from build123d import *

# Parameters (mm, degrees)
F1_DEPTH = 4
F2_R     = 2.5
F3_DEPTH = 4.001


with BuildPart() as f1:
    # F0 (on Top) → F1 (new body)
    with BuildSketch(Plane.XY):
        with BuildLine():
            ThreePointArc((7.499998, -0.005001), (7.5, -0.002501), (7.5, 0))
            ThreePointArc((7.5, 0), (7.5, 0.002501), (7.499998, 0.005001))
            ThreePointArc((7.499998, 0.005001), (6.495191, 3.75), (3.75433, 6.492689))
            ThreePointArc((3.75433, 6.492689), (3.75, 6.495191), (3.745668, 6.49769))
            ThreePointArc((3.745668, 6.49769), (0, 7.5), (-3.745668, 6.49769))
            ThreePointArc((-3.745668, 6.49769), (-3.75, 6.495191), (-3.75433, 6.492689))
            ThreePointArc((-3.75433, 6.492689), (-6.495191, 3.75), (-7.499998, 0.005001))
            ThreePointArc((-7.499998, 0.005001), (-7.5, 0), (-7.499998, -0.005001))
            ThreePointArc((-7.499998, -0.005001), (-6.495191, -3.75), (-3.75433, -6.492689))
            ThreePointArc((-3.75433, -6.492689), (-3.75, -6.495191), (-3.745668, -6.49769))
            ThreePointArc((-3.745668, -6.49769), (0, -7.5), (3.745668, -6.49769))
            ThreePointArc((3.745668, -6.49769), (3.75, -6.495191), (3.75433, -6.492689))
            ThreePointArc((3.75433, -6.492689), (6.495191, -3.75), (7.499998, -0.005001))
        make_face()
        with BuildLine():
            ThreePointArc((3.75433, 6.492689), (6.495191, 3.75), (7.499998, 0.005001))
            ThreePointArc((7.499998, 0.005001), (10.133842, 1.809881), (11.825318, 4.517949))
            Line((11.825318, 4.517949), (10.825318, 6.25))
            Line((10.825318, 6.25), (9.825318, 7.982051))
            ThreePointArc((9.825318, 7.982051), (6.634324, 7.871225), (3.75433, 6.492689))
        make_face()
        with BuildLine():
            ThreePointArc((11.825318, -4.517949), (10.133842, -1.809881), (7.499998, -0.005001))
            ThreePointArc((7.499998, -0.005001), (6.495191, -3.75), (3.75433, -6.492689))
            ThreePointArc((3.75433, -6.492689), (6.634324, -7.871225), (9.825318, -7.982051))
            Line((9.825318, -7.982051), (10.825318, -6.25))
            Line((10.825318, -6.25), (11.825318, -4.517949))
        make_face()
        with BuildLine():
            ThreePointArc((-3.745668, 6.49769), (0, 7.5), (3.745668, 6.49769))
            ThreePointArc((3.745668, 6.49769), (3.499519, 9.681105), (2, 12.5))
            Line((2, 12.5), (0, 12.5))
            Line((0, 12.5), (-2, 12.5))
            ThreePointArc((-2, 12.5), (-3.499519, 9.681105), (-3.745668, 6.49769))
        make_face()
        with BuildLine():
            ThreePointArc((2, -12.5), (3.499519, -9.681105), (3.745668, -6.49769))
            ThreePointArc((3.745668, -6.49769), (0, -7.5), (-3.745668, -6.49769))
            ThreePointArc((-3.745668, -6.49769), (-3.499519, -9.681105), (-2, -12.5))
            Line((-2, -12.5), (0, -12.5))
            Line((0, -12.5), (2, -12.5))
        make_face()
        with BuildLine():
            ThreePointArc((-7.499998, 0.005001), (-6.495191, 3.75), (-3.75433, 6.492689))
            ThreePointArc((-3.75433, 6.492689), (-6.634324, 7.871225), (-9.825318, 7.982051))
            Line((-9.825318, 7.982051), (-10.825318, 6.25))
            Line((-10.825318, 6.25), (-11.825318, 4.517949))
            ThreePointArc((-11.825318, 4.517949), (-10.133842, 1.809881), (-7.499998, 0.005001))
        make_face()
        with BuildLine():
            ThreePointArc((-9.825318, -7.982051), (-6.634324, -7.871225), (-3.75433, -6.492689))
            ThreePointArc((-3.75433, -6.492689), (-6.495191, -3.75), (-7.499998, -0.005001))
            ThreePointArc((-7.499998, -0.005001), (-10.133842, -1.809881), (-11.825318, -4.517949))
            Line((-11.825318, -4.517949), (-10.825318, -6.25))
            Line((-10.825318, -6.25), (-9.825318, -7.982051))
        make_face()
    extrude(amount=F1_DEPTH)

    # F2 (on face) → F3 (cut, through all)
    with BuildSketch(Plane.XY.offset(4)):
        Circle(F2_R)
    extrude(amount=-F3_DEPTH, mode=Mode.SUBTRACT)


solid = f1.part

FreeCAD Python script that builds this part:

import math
import FreeCAD as App
import Part
import Sketcher
from FreeCAD import Vector
Q = App.Units.Quantity

doc = App.newDocument("Part")
body = doc.addObject("PartDesign::Body", "Body")

# Sketch on XY plane
sketch1 = body.newObject("Sketcher::SketchObject", "Sketch")
sketch1.AttachmentSupport = (doc.getObject("XY_Plane"), [""])
sketch1.MapMode = "FlatFace"
sketch1.addGeometry([
    Part.ArcOfCircle(Part.Circle(Vector(4.374374, -0.001251, 0), Vector(0, 0, 1), 3.125626), math.radians(-0.06875), math.radians(0.022923)),  # 0
    Part.ArcOfCircle(Part.Circle(Vector(4.374374, 0.001251, 0), Vector(0, 0, 1), 3.125626), math.radians(-0.022923), math.radians(0.06875)),  # 1
    Part.ArcOfCircle(Part.Circle(Vector(4.495184, 7.214109, 0), Vector(0, 0, 1), 7.810259), math.radians(-67.373234), math.radians(-20.194462)),  # 2
    Part.LineSegment(Vector(11.825318, 4.517949, 0), Vector(9.825318, 7.982051, 0)),  # 3
    Part.ArcOfCircle(Part.Circle(Vector(8.495191, 0.285897, 0), Vector(0, 0, 1), 7.810252), math.radians(80.194428), math.radians(127.373248)),  # 4
    Part.ArcOfCircle(Part.Circle(Vector(0.274527, 0.475485, 0), Vector(0, 0, 1), 6.950955), math.radians(59.958817), math.radians(60.041262)),  # 5
    Part.ArcOfCircle(Part.Circle(Vector(-3.999996, 7.500001, 0), Vector(0, 0, 1), 7.810246), math.radians(-7.373266), math.radians(39.805582)),  # 6
    Part.LineSegment(Vector(2, 12.5, 0), Vector(-2, 12.5, 0)),  # 7
    Part.ArcOfCircle(Part.Circle(Vector(3.999996, 7.500001, 0), Vector(0, 0, 1), 7.810246), math.radians(140.194418), math.radians(187.373266)),  # 8
    Part.ArcOfCircle(Part.Circle(Vector(-0.274527, 0.475485, 0), Vector(0, 0, 1), 6.950955), math.radians(119.958738), math.radians(120.041183)),  # 9
    Part.ArcOfCircle(Part.Circle(Vector(-8.495191, 0.285897, 0), Vector(0, 0, 1), 7.810252), math.radians(52.626752), math.radians(99.805572)),  # 10
    Part.LineSegment(Vector(-9.825318, 7.982051, 0), Vector(-11.825318, 4.517949, 0)),  # 11
    Part.ArcOfCircle(Part.Circle(Vector(-4.495184, 7.214109, 0), Vector(0, 0, 1), 7.810259), math.radians(-159.805538), math.radians(-112.626766)),  # 12
    Part.ArcOfCircle(Part.Circle(Vector(-1.247499, 0, 0), Vector(0, 0, 1), 6.252501), math.radians(179.954173), math.radians(180.045827)),  # 13
    Part.ArcOfCircle(Part.Circle(Vector(-4.495184, -7.214109, 0), Vector(0, 0, 1), 7.810259), math.radians(112.626766), math.radians(159.805538)),  # 14
    Part.LineSegment(Vector(-11.825318, -4.517949, 0), Vector(-9.825318, -7.982051, 0)),  # 15
    Part.ArcOfCircle(Part.Circle(Vector(-8.495191, -0.285897, 0), Vector(0, 0, 1), 7.810252), math.radians(-99.805572), math.radians(-52.626752)),  # 16
    Part.ArcOfCircle(Part.Circle(Vector(-0.274527, -0.475485, 0), Vector(0, 0, 1), 6.950955), math.radians(-120.041183), math.radians(-119.958738)),  # 17
    Part.ArcOfCircle(Part.Circle(Vector(3.999996, -7.500001, 0), Vector(0, 0, 1), 7.810246), math.radians(172.626734), math.radians(219.805582)),  # 18
    Part.LineSegment(Vector(-2, -12.5, 0), Vector(2, -12.5, 0)),  # 19
    Part.ArcOfCircle(Part.Circle(Vector(-3.999996, -7.500001, 0), Vector(0, 0, 1), 7.810246), math.radians(-39.805582), math.radians(7.373266)),  # 20
    Part.ArcOfCircle(Part.Circle(Vector(0.274527, -0.475485, 0), Vector(0, 0, 1), 6.950955), math.radians(-60.041262), math.radians(-59.958817)),  # 21
    Part.ArcOfCircle(Part.Circle(Vector(8.495191, -0.285897, 0), Vector(0, 0, 1), 7.810252), math.radians(-127.373248), math.radians(-80.194428)),  # 22
    Part.LineSegment(Vector(9.825318, -7.982051, 0), Vector(11.825318, -4.517949, 0)),  # 23
    Part.ArcOfCircle(Part.Circle(Vector(4.495184, -7.214109, 0), Vector(0, 0, 1), 7.810259), math.radians(20.194462), math.radians(67.373234)),  # 24
], False)
sketch1.addConstraint([
    Sketcher.Constraint("Coincident", 0, 2, 1, 1),
    Sketcher.Constraint("Coincident", 1, 2, 2, 1),
    Sketcher.Constraint("Coincident", 2, 2, 3, 1),
    Sketcher.Constraint("Coincident", 3, 2, 4, 1),
    Sketcher.Constraint("Coincident", 4, 2, 5, 1),
    Sketcher.Constraint("Coincident", 5, 2, 6, 1),
    Sketcher.Constraint("Coincident", 6, 2, 7, 1),
    Sketcher.Constraint("Coincident", 7, 2, 8, 1),
    Sketcher.Constraint("Coincident", 8, 2, 9, 1),
    Sketcher.Constraint("Coincident", 9, 2, 10, 1),
    Sketcher.Constraint("Coincident", 10, 2, 11, 1),
    Sketcher.Constraint("Coincident", 11, 2, 12, 1),
    Sketcher.Constraint("Coincident", 12, 2, 13, 1),
    Sketcher.Constraint("Coincident", 13, 2, 14, 1),
    Sketcher.Constraint("Coincident", 14, 2, 15, 1),
    Sketcher.Constraint("Coincident", 15, 2, 16, 1),
    Sketcher.Constraint("Coincident", 16, 2, 17, 1),
    Sketcher.Constraint("Coincident", 17, 2, 18, 1),
    Sketcher.Constraint("Coincident", 18, 2, 19, 1),
    Sketcher.Constraint("Coincident", 19, 2, 20, 1),
    Sketcher.Constraint("Coincident", 20, 2, 21, 1),
    Sketcher.Constraint("Coincident", 21, 2, 22, 1),
    Sketcher.Constraint("Coincident", 22, 2, 23, 1),
    Sketcher.Constraint("Coincident", 23, 2, 24, 1),
    Sketcher.Constraint("Coincident", 24, 2, 0, 1),
    Sketcher.Constraint("Horizontal", 7),
    Sketcher.Constraint("Horizontal", 19),
    Sketcher.Constraint("Equal", 0, 1),
    Sketcher.Constraint("Equal", 6, 8),
    Sketcher.Constraint("Equal", 5, 9),
    Sketcher.Constraint("Equal", 4, 10),
    Sketcher.Constraint("Equal", 2, 12),
    Sketcher.Constraint("Equal", 12, 14),
    Sketcher.Constraint("Equal", 10, 16),
    Sketcher.Constraint("Equal", 9, 17),
    Sketcher.Constraint("Equal", 8, 18),
    Sketcher.Constraint("Equal", 18, 20),
    Sketcher.Constraint("Equal", 17, 21),
    Sketcher.Constraint("Equal", 16, 22),
    Sketcher.Constraint("Equal", 14, 24),
    Sketcher.Constraint("Symmetric", 2, 3, 14, 3, -1, 1),
    Sketcher.Constraint("Symmetric", 4, 3, 16, 3, -1, 1),
    Sketcher.Constraint("Symmetric", 5, 3, 17, 3, -1, 1),
    Sketcher.Constraint("Symmetric", 6, 3, 18, 3, -1, 1),
    Sketcher.Constraint("Symmetric", 8, 3, 20, 3, -1, 1),
    Sketcher.Constraint("Symmetric", 9, 3, 21, 3, -1, 1),
    Sketcher.Constraint("Symmetric", 10, 3, 22, 3, -1, 1),
    Sketcher.Constraint("Symmetric", 12, 3, 24, 3, -1, 1),
    Sketcher.Constraint("Symmetric", 6, 3, 8, 3, -2),
    Sketcher.Constraint("Symmetric", 5, 3, 9, 3, -2),
    Sketcher.Constraint("Symmetric", 4, 3, 10, 3, -2),
    Sketcher.Constraint("Symmetric", 2, 3, 12, 3, -2),
    Sketcher.Constraint("PointOnObject", 13, 3, -1),
    Sketcher.Constraint("PointOnObject", 0, 2, -1),
    Sketcher.Constraint("Parallel", 3, 15),
    Sketcher.Constraint("Parallel", 11, 23),
    Sketcher.Constraint("Horizontal", 3, 2, 10, 2),
    Sketcher.Constraint("Horizontal", 2, 2, 11, 2),
    Sketcher.Constraint("Horizontal", 1, 2, 12, 2),
    Sketcher.Constraint("Horizontal", 15, 2, 22, 2),
    Sketcher.Constraint("Vertical", 11, 2, 14, 2),
    Sketcher.Constraint("Vertical", 7, 2, 18, 2),
    Sketcher.Constraint("DistanceX", 7, 2, 7, 1, Q("4 mm")),
    Sketcher.Constraint("Angle", 3, Q("119.999997 deg")),
    Sketcher.Constraint("Distance", 3, Q("4 mm")),
    Sketcher.Constraint("DistanceY", 8, 3, 6, 2, Q("4.999999 mm")),
    Sketcher.Constraint("DistanceY", -1, 1, 6, 3, Q("7.500001 mm")),
    Sketcher.Constraint("DistanceX", -1, 1, 0, 2, Q("7.5 mm")),
    Sketcher.Constraint("Radius", 13, Q("6.252501 mm")),
    Sketcher.Constraint("Radius", 2, Q("7.810259 mm")),
    Sketcher.Constraint("Radius", 4, Q("7.810252 mm")),
    Sketcher.Constraint("DistanceY", 13, 2, 12, 2, Q("0.010002 mm")),
    Sketcher.Constraint("Radius", 0, Q("3.125626 mm")),
    Sketcher.Constraint("Radius", 5, Q("6.950955 mm")),
    Sketcher.Constraint("Radius", 6, Q("7.810246 mm")),
    Sketcher.Constraint("DistanceY", 4, 2, 5, 2, Q("0.005001 mm")),
    Sketcher.Constraint("DistanceY", 0, 3, 1, 3, Q("0.002501 mm")),
    Sketcher.Constraint("DistanceX", 9, 3, 1, 3, Q("4.648901 mm")),
    Sketcher.Constraint("DistanceY", 0, 3, -1, 1, Q("0.001251 mm")),
    Sketcher.Constraint("DistanceY", -1, 1, 2, 3, Q("7.214109 mm")),
    Sketcher.Constraint("DistanceX", -1, 1, 4, 3, Q("8.495191 mm")),
    Sketcher.Constraint("DistanceX", -1, 1, 2, 2, Q("11.825318 mm")),
])
pad1 = body.newObject("PartDesign::Pad", "Pad")
pad1.Profile = sketch1
pad1.Length = 4

# Sketch on XY plane
sketch2 = body.newObject("Sketcher::SketchObject", "Sketch001")
sketch2.AttachmentSupport = (doc.getObject("XY_Plane"), [""])
sketch2.MapMode = "FlatFace"
sketch2.AttachmentOffset = App.Placement(Vector(0, 0, 4), App.Rotation())
sketch2.addGeometry(Part.Circle(Vector(0, 0, 0), Vector(0, 0, 1), 2.5), False)
sketch2.addConstraint([
    Sketcher.Constraint("Coincident", 0, 3, -1, 1),
    Sketcher.Constraint("Diameter", 0, Q("5 mm")),
])
pocket1 = body.newObject("PartDesign::Pocket", "Pocket")
pocket1.Profile = sketch2
pocket1.Type = "ThroughAll"

doc.recompute()
